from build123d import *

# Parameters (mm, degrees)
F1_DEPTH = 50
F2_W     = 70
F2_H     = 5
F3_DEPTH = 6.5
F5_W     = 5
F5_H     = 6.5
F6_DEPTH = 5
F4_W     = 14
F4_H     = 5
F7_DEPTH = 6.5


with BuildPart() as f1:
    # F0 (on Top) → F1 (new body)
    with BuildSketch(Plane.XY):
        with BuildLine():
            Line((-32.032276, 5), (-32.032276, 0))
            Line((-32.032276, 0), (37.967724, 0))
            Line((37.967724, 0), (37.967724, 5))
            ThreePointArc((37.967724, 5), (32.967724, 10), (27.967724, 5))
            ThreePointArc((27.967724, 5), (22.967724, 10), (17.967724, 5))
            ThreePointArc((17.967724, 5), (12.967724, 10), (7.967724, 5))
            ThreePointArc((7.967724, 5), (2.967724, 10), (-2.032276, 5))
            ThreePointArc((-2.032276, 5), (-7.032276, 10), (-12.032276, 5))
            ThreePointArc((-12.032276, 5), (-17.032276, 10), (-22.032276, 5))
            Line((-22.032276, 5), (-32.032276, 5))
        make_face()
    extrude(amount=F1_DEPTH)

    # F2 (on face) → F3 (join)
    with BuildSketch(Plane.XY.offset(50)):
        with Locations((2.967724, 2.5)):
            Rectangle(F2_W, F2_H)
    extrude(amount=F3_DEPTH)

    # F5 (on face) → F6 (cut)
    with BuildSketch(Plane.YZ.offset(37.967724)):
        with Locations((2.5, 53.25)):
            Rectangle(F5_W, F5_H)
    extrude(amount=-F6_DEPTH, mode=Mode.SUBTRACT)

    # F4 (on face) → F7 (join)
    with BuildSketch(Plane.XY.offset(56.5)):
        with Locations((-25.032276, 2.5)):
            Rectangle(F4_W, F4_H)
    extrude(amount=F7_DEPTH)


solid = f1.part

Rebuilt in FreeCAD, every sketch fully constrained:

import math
import FreeCAD as App
import Part
import Sketcher

V = App.Vector
Q = App.Units.Quantity


def add_polygon(sketch, points):
    """Adds a closed chain of lines whose ends are joined by coincident constraints."""
    first, n = sketch.GeometryCount, len(points)
    for a, b in zip(points, points[1:] + points[:1]):
        sketch.addGeometry(Part.LineSegment(App.Vector(*a, 0), App.Vector(*b, 0)), False)
    for i in range(n):
        sketch.addConstraint(Sketcher.Constraint("Coincident", first + i, 2, first + (i + 1) % n, 1))

doc = App.newDocument("Part")
body = doc.addObject("PartDesign::Body", "Body")

# Sketch on XY plane
sketch1 = body.newObject("Sketcher::SketchObject", "Sketch")
sketch1.AttachmentSupport = (doc.getObject("XY_Plane"), [""])
sketch1.MapMode = "FlatFace"
sketch1.addGeometry([
    Part.LineSegment(V(-32.032276, 5, 0), V(-32.032276, 0, 0)),  # 0
    Part.LineSegment(V(-32.032276, 0, 0), V(37.967724, 0, 0)),  # 1
    Part.LineSegment(V(37.967724, 0, 0), V(37.967724, 5, 0)),  # 2
    Part.ArcOfCircle(Part.Circle(V(32.967724, 5, 0), V(0, 0, 1), 5), math.radians(0), math.radians(180)),  # 3
    Part.ArcOfCircle(Part.Circle(V(22.967724, 5, 0), V(0, 0, 1), 5), math.radians(0), math.radians(180)),  # 4
    Part.ArcOfCircle(Part.Circle(V(12.967724, 5, 0), V(0, 0, 1), 5), math.radians(0), math.radians(180)),  # 5
    Part.ArcOfCircle(Part.Circle(V(2.967724, 5, 0), V(0, 0, 1), 5), math.radians(0), math.radians(180)),  # 6
    Part.ArcOfCircle(Part.Circle(V(-7.032276, 5, 0), V(0, 0, 1), 5), math.radians(0), math.radians(180)),  # 7
    Part.ArcOfCircle(Part.Circle(V(-17.032276, 5, 0), V(0, 0, 1), 5), math.radians(0), math.radians(180)),  # 8
    Part.LineSegment(V(-22.032276, 5, 0), V(-32.032276, 5, 0)),  # 9
], False)
sketch1.addConstraint([
    Sketcher.Constraint("Coincident", 0, 2, 1, 1),
    Sketcher.Constraint("Coincident", 1, 2, 2, 1),
    Sketcher.Constraint("Tangent", 2, 2, 3, 1),
    Sketcher.Constraint("Tangent", 3, 2, 4, 1),
    Sketcher.Constraint("Tangent", 4, 2, 5, 1),
    Sketcher.Constraint("Tangent", 5, 2, 6, 1),
    Sketcher.Constraint("Tangent", 6, 2, 7, 1),
    Sketcher.Constraint("Tangent", 7, 2, 8, 1),
    Sketcher.Constraint("Coincident", 8, 2, 9, 1),
    Sketcher.Constraint("Coincident", 9, 2, 0, 1),
    Sketcher.Constraint("Vertical", 0),
    Sketcher.Constraint("Horizontal", 1),
    Sketcher.Constraint("Vertical", 2),
    Sketcher.Constraint("Horizontal", 9),
    Sketcher.Constraint("Equal", 3, 4),
    Sketcher.Constraint("Equal", 4, 5),
    Sketcher.Constraint("Equal", 5, 6),
    Sketcher.Constraint("Equal", 6, 7),
    Sketcher.Constraint("Equal", 7, 8),
    Sketcher.Constraint("PointOnObject", 0, 2, -1),
    Sketcher.Constraint("Horizontal", 3, 3, 4, 3),
    Sketcher.Constraint("Horizontal", 4, 3, 5, 3),
    Sketcher.Constraint("Horizontal", 5, 3, 6, 3),
    Sketcher.Constraint("Horizontal", 6, 3, 7, 3),
    Sketcher.Constraint("Horizontal", 7, 3, 8, 3),
    Sketcher.Constraint("Horizontal", 7, 2, 8, 2),
    Sketcher.Constraint("Radius", 3, Q("5 mm")),
    Sketcher.Constraint("DistanceX", 1, 1, 1, 2, Q("70 mm")),
    Sketcher.Constraint("DistanceY", 0, 2, 0, 1, Q("5 mm")),
    Sketcher.Constraint("DistanceX", -1, 1, 3, 3, Q("32.967724 mm")),
])
pad1 = body.newObject("PartDesign::Pad", "Pad")
pad1.Profile = sketch1
pad1.Length = 50

# Sketch on XY plane
sketch2 = body.newObject("Sketcher::SketchObject", "Sketch001")
sketch2.AttachmentSupport = (doc.getObject("XY_Plane"), [""])
sketch2.MapMode = "FlatFace"
sketch2.AttachmentOffset = App.Placement(V(0, 0, 50), App.Rotation())
add_polygon(sketch2, [(-32.032276, 5), (-32.032276, 0), (37.967724, 0), (37.967724, 5)])  # lines 0-3
sketch2.addConstraint([
    Sketcher.Constraint("Vertical", 0),
    Sketcher.Constraint("Horizontal", 1),
    Sketcher.Constraint("Vertical", 2),
    Sketcher.Constraint("Horizontal", 3),
    Sketcher.Constraint("PointOnObject", 0, 2, -1),
    Sketcher.Constraint("DistanceX", 1, 1, 1, 2, Q("70 mm")),
    Sketcher.Constraint("DistanceY", 0, 2, 0, 1, Q("5 mm")),
    Sketcher.Constraint("DistanceX", 0, 2, -1, 1, Q("32.032276 mm")),
])
pad2 = body.newObject("PartDesign::Pad", "Pad001")
pad2.Profile = sketch2
pad2.Length = 6.5

# Sketch on YZ plane
sketch3 = body.newObject("Sketcher::SketchObject", "Sketch002")
sketch3.AttachmentSupport = (doc.getObject("YZ_Plane"), [""])
sketch3.MapMode = "FlatFace"
sketch3.AttachmentOffset = App.Placement(V(0, 0, 37.967724), App.Rotation())
add_polygon(sketch3, [(0, 56.5), (0, 50), (5, 50), (5, 56.5)])  # lines 0-3
sketch3.addConstraint([
    Sketcher.Constraint("Vertical", 0),
    Sketcher.Constraint("Horizontal", 1),
    Sketcher.Constraint("Vertical", 2),
    Sketcher.Constraint("Horizontal", 3),
    Sketcher.Constraint("PointOnObject", 0, 2, -2),
    Sketcher.Constraint("DistanceX", 1, 1, 1, 2, Q("5 mm")),
    Sketcher.Constraint("DistanceY", 0, 2, 0, 1, Q("6.5 mm")),
    Sketcher.Constraint("DistanceY", -1, 1, 0, 2, Q("50 mm")),
])
pocket1 = body.newObject("PartDesign::Pocket", "Pocket")
pocket1.Profile = sketch3
pocket1.Length = 5

# Sketch on XY plane
sketch4 = body.newObject("Sketcher::SketchObject", "Sketch003")
sketch4.AttachmentSupport = (doc.getObject("XY_Plane"), [""])
sketch4.MapMode = "FlatFace"
sketch4.AttachmentOffset = App.Placement(V(0, 0, 56.5), App.Rotation())
add_polygon(sketch4, [(-32.032276, 5), (-32.032276, 0), (-18.032276, 0), (-18.032276, 5)])  # lines 0-3
sketch4.addConstraint([
    Sketcher.Constraint("Vertical", 0),
    Sketcher.Constraint("Horizontal", 1),
    Sketcher.Constraint("Vertical", 2),
    Sketcher.Constraint("Horizontal", 3),
    Sketcher.Constraint("PointOnObject", 0, 2, -1),
    Sketcher.Constraint("DistanceX", 1, 1, 1, 2, Q("14 mm")),
    Sketcher.Constraint("DistanceY", 0, 2, 0, 1, Q("5 mm")),
    Sketcher.Constraint("DistanceX", 0, 2, -1, 1, Q("32.032276 mm")),
])
pad3 = body.newObject("PartDesign::Pad", "Pad002")
pad3.Profile = sketch4
pad3.Length = 6.5

doc.recompute()
